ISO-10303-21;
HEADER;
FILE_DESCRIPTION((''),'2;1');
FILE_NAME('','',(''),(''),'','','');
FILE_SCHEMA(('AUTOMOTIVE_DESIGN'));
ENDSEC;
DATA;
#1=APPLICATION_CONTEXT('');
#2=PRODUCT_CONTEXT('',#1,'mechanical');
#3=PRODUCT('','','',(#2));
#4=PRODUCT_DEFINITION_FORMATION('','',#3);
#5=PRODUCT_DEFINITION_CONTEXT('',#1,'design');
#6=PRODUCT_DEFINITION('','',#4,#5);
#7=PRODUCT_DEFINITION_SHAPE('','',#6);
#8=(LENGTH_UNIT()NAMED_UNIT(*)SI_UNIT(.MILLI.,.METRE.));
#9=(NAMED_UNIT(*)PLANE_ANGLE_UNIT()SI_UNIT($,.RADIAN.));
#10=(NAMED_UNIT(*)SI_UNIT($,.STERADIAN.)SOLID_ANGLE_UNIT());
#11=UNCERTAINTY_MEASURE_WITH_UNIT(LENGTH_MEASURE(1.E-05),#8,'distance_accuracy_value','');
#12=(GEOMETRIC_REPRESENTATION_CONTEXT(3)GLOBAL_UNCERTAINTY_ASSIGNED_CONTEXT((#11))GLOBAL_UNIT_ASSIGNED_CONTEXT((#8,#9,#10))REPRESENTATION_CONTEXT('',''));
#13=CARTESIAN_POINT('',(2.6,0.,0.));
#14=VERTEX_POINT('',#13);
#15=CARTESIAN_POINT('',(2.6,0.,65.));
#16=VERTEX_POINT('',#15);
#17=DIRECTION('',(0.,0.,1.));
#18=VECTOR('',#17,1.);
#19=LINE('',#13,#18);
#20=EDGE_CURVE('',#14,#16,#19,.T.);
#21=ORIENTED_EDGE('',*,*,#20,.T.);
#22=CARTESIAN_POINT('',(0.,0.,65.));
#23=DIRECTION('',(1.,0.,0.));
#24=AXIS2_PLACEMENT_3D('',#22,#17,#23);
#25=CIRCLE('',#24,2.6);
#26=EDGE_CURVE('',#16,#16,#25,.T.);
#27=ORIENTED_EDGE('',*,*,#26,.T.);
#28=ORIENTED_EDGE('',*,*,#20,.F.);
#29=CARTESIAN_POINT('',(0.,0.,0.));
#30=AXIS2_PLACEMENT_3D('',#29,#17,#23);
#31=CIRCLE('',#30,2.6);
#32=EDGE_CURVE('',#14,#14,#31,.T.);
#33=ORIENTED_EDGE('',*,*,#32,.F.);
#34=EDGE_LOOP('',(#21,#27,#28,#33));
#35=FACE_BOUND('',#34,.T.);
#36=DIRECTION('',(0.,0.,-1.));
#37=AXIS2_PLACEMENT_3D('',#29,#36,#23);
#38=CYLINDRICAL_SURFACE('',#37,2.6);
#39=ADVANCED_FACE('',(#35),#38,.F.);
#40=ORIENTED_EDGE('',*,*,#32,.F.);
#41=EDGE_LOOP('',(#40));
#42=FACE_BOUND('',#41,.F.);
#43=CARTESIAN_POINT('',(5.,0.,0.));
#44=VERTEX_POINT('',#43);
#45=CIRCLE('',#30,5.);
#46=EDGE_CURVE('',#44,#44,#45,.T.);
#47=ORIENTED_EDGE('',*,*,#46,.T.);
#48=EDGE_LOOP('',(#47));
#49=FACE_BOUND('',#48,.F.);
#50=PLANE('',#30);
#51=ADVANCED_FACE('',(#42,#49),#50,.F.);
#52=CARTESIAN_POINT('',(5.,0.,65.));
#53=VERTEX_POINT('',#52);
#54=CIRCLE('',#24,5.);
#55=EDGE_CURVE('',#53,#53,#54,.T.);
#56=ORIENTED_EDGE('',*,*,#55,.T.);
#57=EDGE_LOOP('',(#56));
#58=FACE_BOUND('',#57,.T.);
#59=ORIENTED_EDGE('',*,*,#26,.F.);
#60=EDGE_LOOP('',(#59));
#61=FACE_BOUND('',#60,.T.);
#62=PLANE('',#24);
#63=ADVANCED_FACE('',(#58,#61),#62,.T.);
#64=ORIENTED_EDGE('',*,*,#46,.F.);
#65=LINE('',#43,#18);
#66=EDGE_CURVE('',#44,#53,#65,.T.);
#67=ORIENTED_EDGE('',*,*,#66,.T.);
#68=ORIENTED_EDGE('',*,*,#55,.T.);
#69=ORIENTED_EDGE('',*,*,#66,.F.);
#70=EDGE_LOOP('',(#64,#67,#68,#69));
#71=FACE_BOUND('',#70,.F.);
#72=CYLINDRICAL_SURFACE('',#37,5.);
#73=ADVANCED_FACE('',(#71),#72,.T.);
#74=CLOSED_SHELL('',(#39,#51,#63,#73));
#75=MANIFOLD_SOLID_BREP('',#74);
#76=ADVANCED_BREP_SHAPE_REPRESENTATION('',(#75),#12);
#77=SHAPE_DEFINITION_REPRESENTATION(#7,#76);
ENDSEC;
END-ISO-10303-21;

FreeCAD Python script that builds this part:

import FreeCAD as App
import Part
import Sketcher

doc = App.newDocument("Part")
params = doc.addObject("Spreadsheet::Sheet", "Params")
for row, (alias, value) in enumerate([
    ("sketch1_diameter", "10 mm"),
    ("sketch1_diameter2", "5.2 mm"),
    ("pad1_length", "65 mm"),
], start=1):
    params.set(f"A{row}", alias)
    params.set(f"B{row}", "=" + value)
    params.setAlias(f"B{row}", alias)

body = doc.addObject("PartDesign::Body", "Body")

# Sketch on XY plane
sketch1 = body.newObject("Sketcher::SketchObject", "Sketch")
sketch1.AttachmentSupport = (doc.getObject("XY_Plane"), [""])
sketch1.MapMode = "FlatFace"
sketch1.addGeometry(Part.Circle(App.Vector(0, 0, 0), App.Vector(0, 0, 1), 5), False)
sketch1.addGeometry(Part.Circle(App.Vector(0, 0, 0), App.Vector(0, 0, 1), 2.6), False)
sketch1.addConstraint(Sketcher.Constraint("Coincident", 0, 3, -1, 1))
sketch1.addConstraint(Sketcher.Constraint("Coincident", 1, 3, -1, 1))
sketch1.addConstraint(Sketcher.Constraint("Diameter", 0, 10.0))
sketch1.addConstraint(Sketcher.Constraint("Diameter", 1, 5.2))
sketch1.setExpression("Constraints[2]", "Params.sketch1_diameter")
sketch1.setExpression("Constraints[3]", "Params.sketch1_diameter2")
pad1 = body.newObject("PartDesign::Pad", "Pad")
pad1.Profile = sketch1
pad1.setExpression("Length", "Params.pad1_length")

doc.recompute()
